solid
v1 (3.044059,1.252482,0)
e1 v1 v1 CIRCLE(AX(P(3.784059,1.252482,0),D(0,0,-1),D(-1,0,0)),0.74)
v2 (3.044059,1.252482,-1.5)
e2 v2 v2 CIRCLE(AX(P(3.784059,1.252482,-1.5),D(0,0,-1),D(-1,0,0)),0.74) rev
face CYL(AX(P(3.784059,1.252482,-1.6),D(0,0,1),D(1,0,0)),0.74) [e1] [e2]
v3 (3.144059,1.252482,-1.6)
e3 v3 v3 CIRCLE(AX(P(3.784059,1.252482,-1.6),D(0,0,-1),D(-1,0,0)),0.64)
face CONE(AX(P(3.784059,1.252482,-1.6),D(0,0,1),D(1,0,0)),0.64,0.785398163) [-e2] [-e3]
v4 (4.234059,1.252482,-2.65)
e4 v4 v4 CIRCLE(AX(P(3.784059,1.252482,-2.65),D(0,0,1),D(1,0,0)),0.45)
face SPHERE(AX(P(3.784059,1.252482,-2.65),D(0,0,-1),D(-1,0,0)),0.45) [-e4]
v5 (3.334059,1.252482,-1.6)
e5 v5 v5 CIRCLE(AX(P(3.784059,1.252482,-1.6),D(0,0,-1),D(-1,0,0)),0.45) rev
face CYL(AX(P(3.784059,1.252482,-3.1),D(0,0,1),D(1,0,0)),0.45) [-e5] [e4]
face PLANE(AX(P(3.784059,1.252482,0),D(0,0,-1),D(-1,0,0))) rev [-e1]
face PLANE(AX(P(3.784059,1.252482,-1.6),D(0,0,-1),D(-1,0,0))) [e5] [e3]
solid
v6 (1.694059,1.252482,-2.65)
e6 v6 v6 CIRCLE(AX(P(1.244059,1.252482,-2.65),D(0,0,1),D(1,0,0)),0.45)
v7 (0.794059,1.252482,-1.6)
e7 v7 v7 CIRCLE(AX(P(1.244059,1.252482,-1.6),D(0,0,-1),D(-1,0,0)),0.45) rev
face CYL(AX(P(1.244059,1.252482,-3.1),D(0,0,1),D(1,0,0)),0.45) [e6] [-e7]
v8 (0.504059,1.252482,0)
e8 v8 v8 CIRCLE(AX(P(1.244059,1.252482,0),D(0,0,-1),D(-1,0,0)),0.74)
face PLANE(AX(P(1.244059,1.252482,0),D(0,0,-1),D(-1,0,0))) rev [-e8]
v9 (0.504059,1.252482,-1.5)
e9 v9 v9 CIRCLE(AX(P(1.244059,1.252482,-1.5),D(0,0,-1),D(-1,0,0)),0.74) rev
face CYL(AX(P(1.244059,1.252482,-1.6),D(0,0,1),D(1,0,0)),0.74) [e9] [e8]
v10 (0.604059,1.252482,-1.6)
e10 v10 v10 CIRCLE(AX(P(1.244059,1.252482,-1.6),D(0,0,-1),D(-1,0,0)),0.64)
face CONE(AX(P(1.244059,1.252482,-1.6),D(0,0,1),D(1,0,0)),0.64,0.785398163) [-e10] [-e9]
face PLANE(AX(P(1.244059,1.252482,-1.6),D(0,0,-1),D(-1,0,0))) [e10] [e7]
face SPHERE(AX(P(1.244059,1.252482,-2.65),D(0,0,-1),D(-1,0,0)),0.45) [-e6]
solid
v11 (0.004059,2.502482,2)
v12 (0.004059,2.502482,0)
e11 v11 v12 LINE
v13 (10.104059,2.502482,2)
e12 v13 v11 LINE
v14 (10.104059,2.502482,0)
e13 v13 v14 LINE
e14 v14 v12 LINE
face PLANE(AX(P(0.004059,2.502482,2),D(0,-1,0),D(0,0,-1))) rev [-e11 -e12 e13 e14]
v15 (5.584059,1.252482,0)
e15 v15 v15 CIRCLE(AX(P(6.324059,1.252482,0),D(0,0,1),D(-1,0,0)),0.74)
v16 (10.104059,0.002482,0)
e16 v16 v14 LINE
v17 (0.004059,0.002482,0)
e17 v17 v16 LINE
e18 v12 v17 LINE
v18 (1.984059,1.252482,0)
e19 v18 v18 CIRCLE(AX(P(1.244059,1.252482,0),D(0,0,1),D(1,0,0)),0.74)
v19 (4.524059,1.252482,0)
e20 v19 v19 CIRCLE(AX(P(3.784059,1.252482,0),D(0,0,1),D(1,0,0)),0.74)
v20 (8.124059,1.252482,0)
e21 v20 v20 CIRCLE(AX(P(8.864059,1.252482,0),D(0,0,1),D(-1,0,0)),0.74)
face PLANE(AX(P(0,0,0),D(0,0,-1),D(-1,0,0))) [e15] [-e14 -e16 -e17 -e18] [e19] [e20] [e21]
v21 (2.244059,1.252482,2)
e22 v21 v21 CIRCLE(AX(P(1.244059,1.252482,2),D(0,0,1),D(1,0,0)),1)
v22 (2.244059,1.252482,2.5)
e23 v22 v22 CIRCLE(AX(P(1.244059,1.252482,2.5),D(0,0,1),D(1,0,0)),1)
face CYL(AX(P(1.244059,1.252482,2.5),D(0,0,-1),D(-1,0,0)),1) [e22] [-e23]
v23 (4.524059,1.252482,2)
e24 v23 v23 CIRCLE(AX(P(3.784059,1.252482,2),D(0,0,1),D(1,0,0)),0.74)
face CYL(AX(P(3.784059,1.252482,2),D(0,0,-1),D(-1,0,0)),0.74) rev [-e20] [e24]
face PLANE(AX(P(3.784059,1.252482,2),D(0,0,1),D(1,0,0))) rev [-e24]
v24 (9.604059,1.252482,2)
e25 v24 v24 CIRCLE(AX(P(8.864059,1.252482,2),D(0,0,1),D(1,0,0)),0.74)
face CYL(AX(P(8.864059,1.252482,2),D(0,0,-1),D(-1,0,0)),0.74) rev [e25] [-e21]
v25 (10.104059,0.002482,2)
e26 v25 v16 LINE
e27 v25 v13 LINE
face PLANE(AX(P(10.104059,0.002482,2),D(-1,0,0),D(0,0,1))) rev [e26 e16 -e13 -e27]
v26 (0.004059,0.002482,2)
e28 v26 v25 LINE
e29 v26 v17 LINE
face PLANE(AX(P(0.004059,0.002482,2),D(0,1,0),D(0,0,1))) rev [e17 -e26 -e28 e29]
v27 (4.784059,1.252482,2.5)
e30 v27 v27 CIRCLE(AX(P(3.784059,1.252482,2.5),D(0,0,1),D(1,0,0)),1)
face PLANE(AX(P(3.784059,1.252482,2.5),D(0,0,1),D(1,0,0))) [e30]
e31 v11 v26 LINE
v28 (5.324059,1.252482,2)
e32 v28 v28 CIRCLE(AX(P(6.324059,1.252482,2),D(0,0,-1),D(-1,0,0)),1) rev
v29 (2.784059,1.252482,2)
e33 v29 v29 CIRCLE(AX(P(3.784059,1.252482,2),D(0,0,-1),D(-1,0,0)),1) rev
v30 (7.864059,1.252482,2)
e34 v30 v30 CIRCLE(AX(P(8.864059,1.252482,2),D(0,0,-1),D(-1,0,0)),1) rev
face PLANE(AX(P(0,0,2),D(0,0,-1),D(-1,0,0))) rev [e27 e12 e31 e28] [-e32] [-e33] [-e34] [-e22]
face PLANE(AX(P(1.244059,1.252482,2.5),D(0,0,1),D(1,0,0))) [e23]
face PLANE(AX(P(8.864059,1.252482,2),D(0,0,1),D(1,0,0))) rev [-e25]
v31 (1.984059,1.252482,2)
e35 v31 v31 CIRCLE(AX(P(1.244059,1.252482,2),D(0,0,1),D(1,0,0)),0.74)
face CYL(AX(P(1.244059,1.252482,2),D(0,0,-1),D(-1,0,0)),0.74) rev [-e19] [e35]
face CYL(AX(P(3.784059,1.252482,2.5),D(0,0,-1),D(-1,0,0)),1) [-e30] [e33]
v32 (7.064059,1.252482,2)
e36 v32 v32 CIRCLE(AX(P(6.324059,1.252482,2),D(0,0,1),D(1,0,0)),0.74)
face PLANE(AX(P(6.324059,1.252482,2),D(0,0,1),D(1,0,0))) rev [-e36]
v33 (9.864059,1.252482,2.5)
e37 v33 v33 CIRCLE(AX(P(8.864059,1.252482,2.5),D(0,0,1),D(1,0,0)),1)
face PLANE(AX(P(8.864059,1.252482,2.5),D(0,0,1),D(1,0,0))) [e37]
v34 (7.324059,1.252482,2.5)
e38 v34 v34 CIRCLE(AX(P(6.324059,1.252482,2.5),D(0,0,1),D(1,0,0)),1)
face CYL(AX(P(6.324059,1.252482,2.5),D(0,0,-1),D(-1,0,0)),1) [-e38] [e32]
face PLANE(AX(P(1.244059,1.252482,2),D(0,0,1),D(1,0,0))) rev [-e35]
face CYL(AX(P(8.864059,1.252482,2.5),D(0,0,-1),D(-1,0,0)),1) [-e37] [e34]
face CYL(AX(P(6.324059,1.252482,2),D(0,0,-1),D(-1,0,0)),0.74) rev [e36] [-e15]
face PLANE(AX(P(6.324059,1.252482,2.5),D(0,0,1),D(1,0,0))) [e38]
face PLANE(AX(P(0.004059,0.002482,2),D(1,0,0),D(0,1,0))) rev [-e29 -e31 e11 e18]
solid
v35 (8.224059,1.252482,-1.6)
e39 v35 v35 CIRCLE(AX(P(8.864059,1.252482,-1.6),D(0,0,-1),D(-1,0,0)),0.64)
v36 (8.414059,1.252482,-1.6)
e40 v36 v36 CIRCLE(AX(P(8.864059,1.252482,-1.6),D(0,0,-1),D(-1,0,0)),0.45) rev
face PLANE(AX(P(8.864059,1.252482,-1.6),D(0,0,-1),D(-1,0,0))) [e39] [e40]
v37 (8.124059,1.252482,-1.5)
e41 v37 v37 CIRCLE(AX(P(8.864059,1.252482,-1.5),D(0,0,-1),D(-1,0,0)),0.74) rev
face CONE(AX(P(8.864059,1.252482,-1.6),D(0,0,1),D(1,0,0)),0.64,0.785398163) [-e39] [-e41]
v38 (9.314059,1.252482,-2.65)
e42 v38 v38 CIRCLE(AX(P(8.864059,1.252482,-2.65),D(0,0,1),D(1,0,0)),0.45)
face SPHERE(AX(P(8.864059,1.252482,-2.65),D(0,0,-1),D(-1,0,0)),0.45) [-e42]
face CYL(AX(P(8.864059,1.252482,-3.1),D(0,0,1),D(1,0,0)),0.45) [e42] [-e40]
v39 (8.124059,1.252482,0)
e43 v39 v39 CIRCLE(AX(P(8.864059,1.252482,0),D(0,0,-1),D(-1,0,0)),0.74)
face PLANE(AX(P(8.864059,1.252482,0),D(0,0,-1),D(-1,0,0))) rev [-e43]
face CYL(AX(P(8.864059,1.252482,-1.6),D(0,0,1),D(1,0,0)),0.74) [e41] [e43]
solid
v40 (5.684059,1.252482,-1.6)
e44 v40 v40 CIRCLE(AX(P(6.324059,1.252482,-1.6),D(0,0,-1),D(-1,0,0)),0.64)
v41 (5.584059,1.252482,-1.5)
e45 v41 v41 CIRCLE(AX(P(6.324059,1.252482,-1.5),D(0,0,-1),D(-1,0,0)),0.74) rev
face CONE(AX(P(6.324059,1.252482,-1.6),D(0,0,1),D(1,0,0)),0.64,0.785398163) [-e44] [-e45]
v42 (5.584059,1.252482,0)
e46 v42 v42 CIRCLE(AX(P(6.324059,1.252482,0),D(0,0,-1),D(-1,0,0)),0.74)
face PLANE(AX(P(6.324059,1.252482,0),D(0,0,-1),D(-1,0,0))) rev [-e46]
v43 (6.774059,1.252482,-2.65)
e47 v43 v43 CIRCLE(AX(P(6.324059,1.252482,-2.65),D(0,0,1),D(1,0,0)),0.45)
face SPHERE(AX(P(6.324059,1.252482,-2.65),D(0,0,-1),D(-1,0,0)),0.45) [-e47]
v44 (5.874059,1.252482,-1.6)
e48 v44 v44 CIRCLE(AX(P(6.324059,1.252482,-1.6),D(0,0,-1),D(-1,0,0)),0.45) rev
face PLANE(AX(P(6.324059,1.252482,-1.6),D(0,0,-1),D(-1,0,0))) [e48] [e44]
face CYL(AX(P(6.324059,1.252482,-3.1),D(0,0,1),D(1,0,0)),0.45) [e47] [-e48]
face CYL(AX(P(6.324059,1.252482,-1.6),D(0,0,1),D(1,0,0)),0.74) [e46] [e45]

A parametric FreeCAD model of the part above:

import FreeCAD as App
import Part
import Sketcher
from FreeCAD import Vector


def edges_at(feature, points):
    """Names of the edges that pass closest to the given points."""
    edges = feature.Shape.Edges
    near = lambda p: min(range(len(edges)), key=lambda i: edges[i].distToShape(Part.Vertex(*p))[0])
    return sorted({f"Edge{near(p) + 1}" for p in points})

doc = App.newDocument("Part")
body = doc.addObject("PartDesign::Body", "Body")

# Sketch on XY plane
sketch1 = body.newObject("Sketcher::SketchObject", "Sketch")
sketch1.AttachmentSupport = (doc.getObject("XY_Plane"), [""])
sketch1.MapMode = "FlatFace"
sketch1.addGeometry(Part.LineSegment(Vector(0, 2.5, 0), Vector(0, 0, 0)), False)
sketch1.addGeometry(Part.LineSegment(Vector(0, 0, 0), Vector(10.1, 0, 0)), False)
sketch1.addGeometry(Part.LineSegment(Vector(10.1, 0, 0), Vector(10.1, 2.5, 0)), False)
sketch1.addGeometry(Part.LineSegment(Vector(10.1, 2.5, 0), Vector(0, 2.5, 0)), False)
sketch1.addGeometry(Part.Circle(Vector(1.2, 1.3, 0), Vector(0, 0, 1), 0.7), False)
sketch1.addGeometry(Part.Circle(Vector(3.8, 1.3, 0), Vector(0, 0, 1), 0.7), False)
sketch1.addGeometry(Part.Circle(Vector(6.3, 1.3, 0), Vector(0, 0, 1), 0.7), False)
sketch1.addGeometry(Part.Circle(Vector(8.9, 1.3, 0), Vector(0, 0, 1), 0.7), False)
sketch1.addConstraint(Sketcher.Constraint("Coincident", 0, 2, 1, 1))
sketch1.addConstraint(Sketcher.Constraint("Coincident", 1, 2, 2, 1))
sketch1.addConstraint(Sketcher.Constraint("Coincident", 2, 2, 3, 1))
sketch1.addConstraint(Sketcher.Constraint("Coincident", 3, 2, 0, 1))
sketch1.addConstraint(Sketcher.Constraint("Vertical", 0))
sketch1.addConstraint(Sketcher.Constraint("Horizontal", 1))
sketch1.addConstraint(Sketcher.Constraint("Vertical", 2))
sketch1.addConstraint(Sketcher.Constraint("Horizontal", 3))
sketch1.addConstraint(Sketcher.Constraint("Equal", 4, 5))
sketch1.addConstraint(Sketcher.Constraint("Equal", 5, 6))
sketch1.addConstraint(Sketcher.Constraint("Equal", 6, 7))
sketch1.addConstraint(Sketcher.Constraint("Horizontal", 4, 3, 5, 3))
sketch1.addConstraint(Sketcher.Constraint("Horizontal", 5, 3, 6, 3))
sketch1.addConstraint(Sketcher.Constraint("Horizontal", 6, 3, 7, 3))
sketch1.addConstraint(Sketcher.Constraint("Diameter", 4, 1.48))
sketch1.addConstraint(Sketcher.Constraint("DistanceX", 1, 1, 1, 2, 10.1))
sketch1.addConstraint(Sketcher.Constraint("DistanceY", 0, 2, 0, 1, 2.5))
sketch1.addConstraint(Sketcher.Constraint("DistanceX", 4, 3, 5, 3, 2.54))
sketch1.addConstraint(Sketcher.Constraint("DistanceX", 5, 3, 6, 3, 2.54))
sketch1.addConstraint(Sketcher.Constraint("DistanceX", 6, 3, 7, 3, 2.54))
sketch1.addConstraint(Sketcher.Constraint("DistanceX", 0, 2, 4, 3, 1.24))
sketch1.addConstraint(Sketcher.Constraint("DistanceY", 0, 2, 4, 3, 1.25))
sketch1.addConstraint(Sketcher.Constraint("DistanceX", -1, 1, 4, 3, 1.244059))
sketch1.addConstraint(Sketcher.Constraint("DistanceY", -1, 1, 4, 3, 1.252482))
pad1 = body.newObject("PartDesign::Pad", "Pad")
pad1.Profile = sketch1
pad1.Length = 2

# Sketch on XY plane
sketch2 = body.newObject("Sketcher::SketchObject", "Sketch001")
sketch2.AttachmentSupport = (doc.getObject("XY_Plane"), [""])
sketch2.MapMode = "FlatFace"
sketch2.AttachmentOffset = App.Placement(Vector(0, 0, 2), App.Rotation())
sketch2.addGeometry(Part.Circle(Vector(1.2, 1.3, 0), Vector(0, 0, 1), 1), False)
sketch2.addGeometry(Part.Circle(Vector(3.8, 1.3, 0), Vector(0, 0, 1), 1), False)
sketch2.addGeometry(Part.Circle(Vector(6.3, 1.3, 0), Vector(0, 0, 1), 1), False)
sketch2.addGeometry(Part.Circle(Vector(8.9, 1.3, 0), Vector(0, 0, 1), 1), False)
sketch2.addConstraint(Sketcher.Constraint("Equal", 0, 1))
sketch2.addConstraint(Sketcher.Constraint("Equal", 1, 2))
sketch2.addConstraint(Sketcher.Constraint("Equal", 2, 3))
sketch2.addConstraint(Sketcher.Constraint("Horizontal", 0, 3, 1, 3))
sketch2.addConstraint(Sketcher.Constraint("Horizontal", 1, 3, 2, 3))
sketch2.addConstraint(Sketcher.Constraint("Horizontal", 2, 3, 3, 3))
sketch2.addConstraint(Sketcher.Constraint("Diameter", 0, 2.0))
sketch2.addConstraint(Sketcher.Constraint("DistanceX", 0, 3, 1, 3, 2.54))
sketch2.addConstraint(Sketcher.Constraint("DistanceX", 1, 3, 2, 3, 2.54))
sketch2.addConstraint(Sketcher.Constraint("DistanceX", 2, 3, 3, 3, 2.54))
sketch2.addConstraint(Sketcher.Constraint("DistanceX", -1, 1, 0, 3, 1.244059))
sketch2.addConstraint(Sketcher.Constraint("DistanceY", -1, 1, 0, 3, 1.252482))
pad2 = body.newObject("PartDesign::Pad", "Pad001")
pad2.Profile = sketch2
pad2.Length = 0.5
body2 = doc.addObject("PartDesign::Body", "Body001")

# Sketch on XY plane
sketch3 = body2.newObject("Sketcher::SketchObject", "Sketch002")
sketch3.AttachmentSupport = (doc.getObject("XY_Plane001"), [""])
sketch3.MapMode = "FlatFace"
sketch3.addGeometry(Part.Circle(Vector(1.2, 1.3, 0), Vector(0, 0, 1), 0.7), False)
sketch3.addConstraint(Sketcher.Constraint("Diameter", 0, 1.48))
sketch3.addConstraint(Sketcher.Constraint("DistanceX", -1, 1, 0, 3, 1.244059))
sketch3.addConstraint(Sketcher.Constraint("DistanceY", -1, 1, 0, 3, 1.252482))
pad3 = body2.newObject("PartDesign::Pad", "Pad002")
pad3.Profile = sketch3
pad3.Length = 1.6
pad3.Reversed = True
body3 = doc.addObject("PartDesign::Body", "Body002")

# Sketch on XY plane
sketch4 = body3.newObject("Sketcher::SketchObject", "Sketch003")
sketch4.AttachmentSupport = (doc.getObject("XY_Plane002"), [""])
sketch4.MapMode = "FlatFace"
sketch4.addGeometry(Part.Circle(Vector(3.8, 1.3, 0), Vector(0, 0, 1), 0.7), False)
sketch4.addConstraint(Sketcher.Constraint("Diameter", 0, 1.48))
sketch4.addConstraint(Sketcher.Constraint("DistanceX", -1, 1, 0, 3, 3.784059))
sketch4.addConstraint(Sketcher.Constraint("DistanceY", -1, 1, 0, 3, 1.252482))
pad4 = body3.newObject("PartDesign::Pad", "Pad003")
pad4.Profile = sketch4
pad4.Length = 1.6
pad4.Reversed = True
body4 = doc.addObject("PartDesign::Body", "Body003")

# Sketch on XY plane
sketch5 = body4.newObject("Sketcher::SketchObject", "Sketch004")
sketch5.AttachmentSupport = (doc.getObject("XY_Plane003"), [""])
sketch5.MapMode = "FlatFace"
sketch5.addGeometry(Part.Circle(Vector(6.3, 1.3, 0), Vector(0, 0, 1), 0.7), False)
sketch5.addConstraint(Sketcher.Constraint("Diameter", 0, 1.48))
sketch5.addConstraint(Sketcher.Constraint("DistanceX", -1, 1, 0, 3, 6.324059))
sketch5.addConstraint(Sketcher.Constraint("DistanceY", -1, 1, 0, 3, 1.252482))
pad5 = body4.newObject("PartDesign::Pad", "Pad004")
pad5.Profile = sketch5
pad5.Length = 1.6
pad5.Reversed = True
body5 = doc.addObject("PartDesign::Body", "Body004")

# Sketch on XY plane
sketch6 = body5.newObject("Sketcher::SketchObject", "Sketch005")
sketch6.AttachmentSupport = (doc.getObject("XY_Plane004"), [""])
sketch6.MapMode = "FlatFace"
sketch6.addGeometry(Part.Circle(Vector(8.9, 1.3, 0), Vector(0, 0, 1), 0.7), False)
sketch6.addConstraint(Sketcher.Constraint("Diameter", 0, 1.48))
sketch6.addConstraint(Sketcher.Constraint("DistanceX", -1, 1, 0, 3, 8.864059))
sketch6.addConstraint(Sketcher.Constraint("DistanceY", -1, 1, 0, 3, 1.252482))
pad6 = body5.newObject("PartDesign::Pad", "Pad005")
pad6.Profile = sketch6
pad6.Length = 1.6
pad6.Reversed = True
body2.AllowCompound = True
doc.recompute()

boolean = body2.newObject("PartDesign::Boolean", "Boolean")
boolean.Type = "Fuse"
boolean.addObjects([body3])
doc.recompute()

boolean2 = body2.newObject("PartDesign::Boolean", "Boolean001")
boolean2.Type = "Fuse"
boolean2.addObjects([body4])
doc.recompute()

boolean3 = body2.newObject("PartDesign::Boolean", "Boolean002")
boolean3.Type = "Fuse"
boolean3.addObjects([body5])

# Sketch on XY plane
sketch7 = body2.newObject("Sketcher::SketchObject", "Sketch006")
sketch7.AttachmentSupport = (doc.getObject("XY_Plane001"), [""])
sketch7.MapMode = "FlatFace"
sketch7.addGeometry(Part.Circle(Vector(8.86, 1.25, 0), Vector(0, 0, 1), 0.45), False)
sketch7.addGeometry(Part.Circle(Vector(6.32, 1.25, 0), Vector(0, 0, 1), 0.45), False)
sketch7.addGeometry(Part.Circle(Vector(3.78, 1.25, 0), Vector(0, 0, 1), 0.45), False)
sketch7.addGeometry(Part.Circle(Vector(1.24, 1.25, 0), Vector(0, 0, 1), 0.45), False)
sketch7.addConstraint(Sketcher.Constraint("Equal", 0, 1))
sketch7.addConstraint(Sketcher.Constraint("Equal", 1, 2))
sketch7.addConstraint(Sketcher.Constraint("Equal", 2, 3))
sketch7.addConstraint(Sketcher.Constraint("Horizontal", 0, 3, 1, 3))
sketch7.addConstraint(Sketcher.Constraint("Horizontal", 1, 3, 2, 3))
sketch7.addConstraint(Sketcher.Constraint("Horizontal", 2, 3, 3, 3))
sketch7.addConstraint(Sketcher.Constraint("Diameter", 0, 0.9))
sketch7.addConstraint(Sketcher.Constraint("DistanceX", 1, 3, 0, 3, 2.54))
sketch7.addConstraint(Sketcher.Constraint("DistanceX", 2, 3, 1, 3, 2.54))
sketch7.addConstraint(Sketcher.Constraint("DistanceX", 3, 3, 2, 3, 2.54))
sketch7.addConstraint(Sketcher.Constraint("DistanceX", -1, 1, 0, 3, 8.864059))
sketch7.addConstraint(Sketcher.Constraint("DistanceY", -1, 1, 0, 3, 1.252482))
pad7 = body2.newObject("PartDesign::Pad", "Pad006")
pad7.Profile = sketch7
pad7.Length = 3.1
pad7.Reversed = True
doc.recompute()

fillet = body2.newObject("PartDesign::Fillet", "Fillet")
fillet.Base = (pad7, edges_at(pad7, [(9.314, 1.252, -3.1)]))
fillet.Radius = 0.45
doc.recompute()

fillet2 = body2.newObject("PartDesign::Fillet", "Fillet001")
fillet2.Base = (fillet, edges_at(fillet, [(6.774, 1.252, -3.1)]))
fillet2.Radius = 0.45
doc.recompute()

fillet3 = body2.newObject("PartDesign::Fillet", "Fillet002")
fillet3.Base = (fillet2, edges_at(fillet2, [(4.234, 1.252, -3.1)]))
fillet3.Radius = 0.45
doc.recompute()

fillet4 = body2.newObject("PartDesign::Fillet", "Fillet003")
fillet4.Base = (fillet3, edges_at(fillet3, [(1.694, 1.252, -3.1)]))
fillet4.Radius = 0.45
doc.recompute()

chamfer = body2.newObject("PartDesign::Chamfer", "Chamfer")
chamfer.Base = (fillet4, edges_at(fillet4, [(9.604, 1.252, -1.6)]))
chamfer.Size = 0.1
doc.recompute()

chamfer2 = body2.newObject("PartDesign::Chamfer", "Chamfer001")
chamfer2.Base = (chamfer, edges_at(chamfer, [(7.064, 1.252, -1.6)]))
chamfer2.Size = 0.1
doc.recompute()

chamfer3 = body2.newObject("PartDesign::Chamfer", "Chamfer002")
chamfer3.Base = (chamfer2, edges_at(chamfer2, [(4.524, 1.252, -1.6)]))
chamfer3.Size = 0.1
doc.recompute()

chamfer4 = body2.newObject("PartDesign::Chamfer", "Chamfer003")
chamfer4.Base = (chamfer3, edges_at(chamfer3, [(1.984, 1.252, -1.6)]))
chamfer4.Size = 0.1

doc.recompute()
